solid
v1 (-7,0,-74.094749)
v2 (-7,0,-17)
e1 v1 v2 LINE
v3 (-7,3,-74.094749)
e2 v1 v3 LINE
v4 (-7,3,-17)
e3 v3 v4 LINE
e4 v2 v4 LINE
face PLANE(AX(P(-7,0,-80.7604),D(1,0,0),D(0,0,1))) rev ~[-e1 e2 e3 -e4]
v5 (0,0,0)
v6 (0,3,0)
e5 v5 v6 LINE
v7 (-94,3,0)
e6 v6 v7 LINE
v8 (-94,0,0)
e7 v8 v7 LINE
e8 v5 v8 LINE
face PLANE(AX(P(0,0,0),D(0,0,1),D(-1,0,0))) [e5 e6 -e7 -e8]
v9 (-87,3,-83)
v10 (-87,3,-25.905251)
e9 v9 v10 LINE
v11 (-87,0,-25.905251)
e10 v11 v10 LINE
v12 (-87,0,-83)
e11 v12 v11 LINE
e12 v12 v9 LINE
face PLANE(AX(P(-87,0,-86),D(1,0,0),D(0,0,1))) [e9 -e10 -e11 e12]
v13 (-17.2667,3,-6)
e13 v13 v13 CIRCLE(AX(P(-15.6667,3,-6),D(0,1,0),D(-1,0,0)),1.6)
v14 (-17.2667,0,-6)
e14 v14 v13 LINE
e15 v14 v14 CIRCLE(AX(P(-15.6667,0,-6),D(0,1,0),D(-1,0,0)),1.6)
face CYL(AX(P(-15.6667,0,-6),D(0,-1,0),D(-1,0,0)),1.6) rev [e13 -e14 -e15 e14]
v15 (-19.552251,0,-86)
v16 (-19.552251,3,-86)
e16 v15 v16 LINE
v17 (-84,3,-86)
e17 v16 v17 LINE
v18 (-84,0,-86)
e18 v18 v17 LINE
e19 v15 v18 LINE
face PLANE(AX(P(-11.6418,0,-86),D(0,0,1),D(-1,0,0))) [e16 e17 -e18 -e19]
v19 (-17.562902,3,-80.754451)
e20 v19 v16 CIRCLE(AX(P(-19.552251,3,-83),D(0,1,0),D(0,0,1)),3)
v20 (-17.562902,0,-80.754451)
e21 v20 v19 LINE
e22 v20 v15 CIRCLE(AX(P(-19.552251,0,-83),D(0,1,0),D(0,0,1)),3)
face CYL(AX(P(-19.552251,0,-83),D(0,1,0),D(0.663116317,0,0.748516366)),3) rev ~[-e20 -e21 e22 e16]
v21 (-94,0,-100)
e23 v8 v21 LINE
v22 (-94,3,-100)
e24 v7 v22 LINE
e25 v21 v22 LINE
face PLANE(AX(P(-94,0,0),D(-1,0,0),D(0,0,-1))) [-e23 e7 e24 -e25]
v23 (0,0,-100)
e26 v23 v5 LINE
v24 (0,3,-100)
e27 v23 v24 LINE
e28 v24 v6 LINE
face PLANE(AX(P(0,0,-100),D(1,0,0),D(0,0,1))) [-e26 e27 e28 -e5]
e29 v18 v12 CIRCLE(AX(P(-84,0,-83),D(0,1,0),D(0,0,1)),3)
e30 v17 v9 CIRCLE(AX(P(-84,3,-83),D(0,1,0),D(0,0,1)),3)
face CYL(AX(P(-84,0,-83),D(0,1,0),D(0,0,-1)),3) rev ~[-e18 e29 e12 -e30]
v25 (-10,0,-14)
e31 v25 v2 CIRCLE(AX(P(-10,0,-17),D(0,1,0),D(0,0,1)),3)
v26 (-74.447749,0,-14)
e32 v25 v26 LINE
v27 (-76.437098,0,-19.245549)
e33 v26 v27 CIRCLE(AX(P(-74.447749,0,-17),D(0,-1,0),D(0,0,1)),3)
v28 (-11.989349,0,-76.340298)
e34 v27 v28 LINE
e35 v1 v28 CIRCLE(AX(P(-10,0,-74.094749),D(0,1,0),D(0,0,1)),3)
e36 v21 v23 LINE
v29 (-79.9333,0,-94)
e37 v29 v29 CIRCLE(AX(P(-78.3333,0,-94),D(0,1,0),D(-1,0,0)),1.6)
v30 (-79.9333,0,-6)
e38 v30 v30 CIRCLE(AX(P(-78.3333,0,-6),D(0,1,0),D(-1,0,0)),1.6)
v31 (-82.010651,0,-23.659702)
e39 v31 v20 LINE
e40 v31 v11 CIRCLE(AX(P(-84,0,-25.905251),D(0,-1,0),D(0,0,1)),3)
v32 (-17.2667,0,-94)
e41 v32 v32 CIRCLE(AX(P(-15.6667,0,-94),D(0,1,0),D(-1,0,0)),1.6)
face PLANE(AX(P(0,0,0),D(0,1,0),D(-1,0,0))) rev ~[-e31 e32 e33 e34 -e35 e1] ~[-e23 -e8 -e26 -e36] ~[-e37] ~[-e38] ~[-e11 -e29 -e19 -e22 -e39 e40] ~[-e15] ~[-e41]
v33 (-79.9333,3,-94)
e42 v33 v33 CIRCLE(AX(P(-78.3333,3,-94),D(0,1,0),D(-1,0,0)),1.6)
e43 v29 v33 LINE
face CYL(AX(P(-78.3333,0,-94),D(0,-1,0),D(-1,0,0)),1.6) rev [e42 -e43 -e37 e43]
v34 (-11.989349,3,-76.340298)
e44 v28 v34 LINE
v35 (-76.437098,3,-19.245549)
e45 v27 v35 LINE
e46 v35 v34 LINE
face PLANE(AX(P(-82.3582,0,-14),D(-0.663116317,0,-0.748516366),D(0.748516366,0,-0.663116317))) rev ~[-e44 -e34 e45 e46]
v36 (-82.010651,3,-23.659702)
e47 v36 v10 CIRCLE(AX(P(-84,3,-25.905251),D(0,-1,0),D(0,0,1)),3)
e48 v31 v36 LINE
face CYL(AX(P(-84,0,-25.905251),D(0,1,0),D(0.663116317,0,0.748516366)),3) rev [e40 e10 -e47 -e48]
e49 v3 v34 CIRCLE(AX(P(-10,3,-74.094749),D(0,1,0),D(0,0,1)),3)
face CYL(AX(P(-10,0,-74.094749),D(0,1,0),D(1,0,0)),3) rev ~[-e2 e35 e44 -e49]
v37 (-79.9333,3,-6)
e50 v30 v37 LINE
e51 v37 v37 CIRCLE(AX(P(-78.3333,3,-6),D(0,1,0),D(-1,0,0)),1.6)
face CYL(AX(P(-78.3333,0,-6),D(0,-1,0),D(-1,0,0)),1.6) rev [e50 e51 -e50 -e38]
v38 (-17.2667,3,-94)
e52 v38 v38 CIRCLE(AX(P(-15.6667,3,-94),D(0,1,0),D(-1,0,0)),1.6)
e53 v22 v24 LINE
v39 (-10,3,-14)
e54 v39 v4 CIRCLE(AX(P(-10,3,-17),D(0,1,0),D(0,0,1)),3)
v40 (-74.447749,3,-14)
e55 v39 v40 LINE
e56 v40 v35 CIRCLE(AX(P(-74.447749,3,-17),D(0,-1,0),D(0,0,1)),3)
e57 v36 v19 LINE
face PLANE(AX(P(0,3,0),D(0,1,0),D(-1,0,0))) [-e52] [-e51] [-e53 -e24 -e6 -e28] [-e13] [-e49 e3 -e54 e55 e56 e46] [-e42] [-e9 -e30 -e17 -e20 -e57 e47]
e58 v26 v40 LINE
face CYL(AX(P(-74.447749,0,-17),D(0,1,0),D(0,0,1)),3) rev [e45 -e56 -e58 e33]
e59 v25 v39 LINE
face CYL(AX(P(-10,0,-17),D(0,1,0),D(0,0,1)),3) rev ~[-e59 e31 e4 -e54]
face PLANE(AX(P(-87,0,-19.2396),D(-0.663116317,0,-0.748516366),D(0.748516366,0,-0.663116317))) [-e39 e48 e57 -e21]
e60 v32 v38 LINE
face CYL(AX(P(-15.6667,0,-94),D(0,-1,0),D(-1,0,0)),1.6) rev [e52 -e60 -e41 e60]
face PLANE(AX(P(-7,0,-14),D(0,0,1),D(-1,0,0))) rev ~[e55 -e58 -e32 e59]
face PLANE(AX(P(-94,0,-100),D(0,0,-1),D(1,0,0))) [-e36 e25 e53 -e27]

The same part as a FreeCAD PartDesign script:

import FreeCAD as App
import Part
import Sketcher


def edges_at(feature, points):
    """Names of the edges that pass closest to the given points."""
    edges = feature.Shape.Edges
    near = lambda p: min(range(len(edges)), key=lambda i: edges[i].distToShape(Part.Vertex(*p))[0])
    return sorted({f"Edge{near(p) + 1}" for p in points})

doc = App.newDocument("Part")
body = doc.addObject("PartDesign::Body", "Body")

# Sketch on XZ plane
sketch1 = body.newObject("Sketcher::SketchObject", "Sketch")
sketch1.AttachmentSupport = (doc.getObject("XZ_Plane"), [""])
sketch1.MapMode = "FlatFace"
sketch1.addGeometry([
    Part.LineSegment(App.Vector(-94, 0, 0), App.Vector(0, 0, 0)),  # 0
    Part.LineSegment(App.Vector(0, 0, 0), App.Vector(0, -100, 0)),  # 1
    Part.LineSegment(App.Vector(0, -100, 0), App.Vector(-94, -100, 0)),  # 2
    Part.LineSegment(App.Vector(-94, -100, 0), App.Vector(-94, 0, 0)),  # 3
    Part.Circle(App.Vector(-15.7, -94, 0), App.Vector(0, 0, 1), 1.6),  # 4
    Part.Circle(App.Vector(-78.3, -94, 0), App.Vector(0, 0, 1), 1.6),  # 5
    Part.LineSegment(App.Vector(-11.6, -86, 0), App.Vector(-87, -19.2, 0)),  # 6
    Part.LineSegment(App.Vector(-87, -19.2, 0), App.Vector(-87, -86, 0)),  # 7
    Part.LineSegment(App.Vector(-87, -86, 0), App.Vector(-11.6, -86, 0)),  # 8
    Part.LineSegment(App.Vector(-7, -14, 0), App.Vector(-82.4, -14, 0)),  # 9
    Part.LineSegment(App.Vector(-82.4, -14, 0), App.Vector(-7, -80.8, 0)),  # 10
    Part.LineSegment(App.Vector(-7, -80.8, 0), App.Vector(-7, -14, 0)),  # 11
    Part.Circle(App.Vector(-15.7, -6, 0), App.Vector(0, 0, 1), 1.6),  # 12
    Part.Circle(App.Vector(-78.3, -6, 0), App.Vector(0, 0, 1), 1.6),  # 13
], False)
sketch1.addConstraint([
    Sketcher.Constraint("Coincident", 0, 2, 1, 1),
    Sketcher.Constraint("Coincident", 1, 2, 2, 1),
    Sketcher.Constraint("Coincident", 2, 2, 3, 1),
    Sketcher.Constraint("Coincident", 3, 2, 0, 1),
    Sketcher.Constraint("Coincident", 6, 2, 7, 1),
    Sketcher.Constraint("Coincident", 7, 2, 8, 1),
    Sketcher.Constraint("Coincident", 8, 2, 6, 1),
    Sketcher.Constraint("Coincident", 9, 2, 10, 1),
    Sketcher.Constraint("Coincident", 10, 2, 11, 1),
    Sketcher.Constraint("Coincident", 11, 2, 9, 1),
    Sketcher.Constraint("Horizontal", 0),
    Sketcher.Constraint("Vertical", 1),
    Sketcher.Constraint("Horizontal", 2),
    Sketcher.Constraint("Vertical", 3),
    Sketcher.Constraint("Vertical", 7),
    Sketcher.Constraint("Horizontal", 8),
    Sketcher.Constraint("Horizontal", 9),
    Sketcher.Constraint("Vertical", 11),
    Sketcher.Constraint("Coincident", 0, 2, -1, 1),
    Sketcher.Constraint("Equal", 4, 5),
    Sketcher.Constraint("Equal", 5, 12),
    Sketcher.Constraint("Equal", 12, 13),
    Sketcher.Constraint("Parallel", 6, 10),
    Sketcher.Constraint("Horizontal", 4, 3, 5, 3),
    Sketcher.Constraint("Horizontal", 12, 3, 13, 3),
    Sketcher.Constraint("Vertical", 4, 3, 12, 3),
    Sketcher.Constraint("Vertical", 5, 3, 13, 3),
    Sketcher.Constraint("Equal", 8, 9),
    Sketcher.Constraint("Diameter", 4, 3.2),
    Sketcher.Constraint("DistanceX", 0, 1, 0, 2, 94.0),
    Sketcher.Constraint("DistanceY", 1, 2, 1, 1, 100.0),
    Sketcher.Constraint("DistanceY", 4, 3, -1, 1, 94.0),
    Sketcher.Constraint("DistanceX", 10, 2, -1, 1, 7.0),
    Sketcher.Constraint("DistanceY", 1, 2, 12, 3, 94.0),
    Sketcher.Constraint("DistanceX", 3, 2, 6, 2, 7.0),
    Sketcher.Constraint("DistanceY", 7, 2, -1, 1, 86.0),
    Sketcher.Constraint("DistanceY", 9, 2, -1, 1, 14.0),
    Sketcher.Constraint("DistanceX", 4, 3, -1, 1, 15.6667),
    Sketcher.Constraint("DistanceX", 5, 3, 4, 3, 62.6666),
    Sketcher.Constraint("DistanceX", 8, 1, 8, 2, 75.3582),
    Sketcher.Constraint("DistanceY", 7, 2, 7, 1, 66.7604),
])
pad1 = body.newObject("PartDesign::Pad", "Pad")
pad1.Profile = sketch1
pad1.Length = 3
pad1.Reversed = True
doc.recompute()

fillet = body.newObject("PartDesign::Fillet", "Fillet")
fillet.Base = (pad1, edges_at(pad1, [
    (-82.358, 1.5, -14),
    (-7, 1.5, -14),
    (-7, 1.5, -80.76),
    (-87, 1.5, -19.24),
    (-11.642, 1.5, -86),
    (-87, 1.5, -86),
]))
fillet.Radius = 3

doc.recompute()
